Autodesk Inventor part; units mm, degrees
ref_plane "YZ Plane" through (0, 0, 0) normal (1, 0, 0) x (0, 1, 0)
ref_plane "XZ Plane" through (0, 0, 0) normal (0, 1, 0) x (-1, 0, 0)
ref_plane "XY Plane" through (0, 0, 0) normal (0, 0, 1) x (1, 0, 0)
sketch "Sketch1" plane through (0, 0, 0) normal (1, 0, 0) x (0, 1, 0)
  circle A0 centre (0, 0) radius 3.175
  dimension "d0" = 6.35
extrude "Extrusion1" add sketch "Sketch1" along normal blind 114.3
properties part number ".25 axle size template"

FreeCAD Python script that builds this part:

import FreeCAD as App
import Part
import Sketcher
Q = App.Units.Quantity

doc = App.newDocument("Part")
body = doc.addObject("PartDesign::Body", "Body")

# Sketch on YZ plane
sketch1 = doc.addObject("Sketcher::SketchObject", "Sketch")
body.addObject(sketch1)
sketch1.AttachmentSupport = (doc.YZ_Plane, [""])
sketch1.MapMode = "FlatFace"
sketch1.addGeometry(Part.Circle(App.Vector(0, 0, 0), App.Vector(0, 0, 1), 3.2), False)
sketch1.addConstraint([
    Sketcher.Constraint("Coincident", 0, 3, -1, 1),
    Sketcher.Constraint("Diameter", 0, Q("0.25 in")),
])
pad1 = doc.addObject("PartDesign::Pad", "Pad")
body.addObject(pad1)
pad1.Profile = sketch1
pad1.Length = Q("4.5 in")

doc.recompute()
